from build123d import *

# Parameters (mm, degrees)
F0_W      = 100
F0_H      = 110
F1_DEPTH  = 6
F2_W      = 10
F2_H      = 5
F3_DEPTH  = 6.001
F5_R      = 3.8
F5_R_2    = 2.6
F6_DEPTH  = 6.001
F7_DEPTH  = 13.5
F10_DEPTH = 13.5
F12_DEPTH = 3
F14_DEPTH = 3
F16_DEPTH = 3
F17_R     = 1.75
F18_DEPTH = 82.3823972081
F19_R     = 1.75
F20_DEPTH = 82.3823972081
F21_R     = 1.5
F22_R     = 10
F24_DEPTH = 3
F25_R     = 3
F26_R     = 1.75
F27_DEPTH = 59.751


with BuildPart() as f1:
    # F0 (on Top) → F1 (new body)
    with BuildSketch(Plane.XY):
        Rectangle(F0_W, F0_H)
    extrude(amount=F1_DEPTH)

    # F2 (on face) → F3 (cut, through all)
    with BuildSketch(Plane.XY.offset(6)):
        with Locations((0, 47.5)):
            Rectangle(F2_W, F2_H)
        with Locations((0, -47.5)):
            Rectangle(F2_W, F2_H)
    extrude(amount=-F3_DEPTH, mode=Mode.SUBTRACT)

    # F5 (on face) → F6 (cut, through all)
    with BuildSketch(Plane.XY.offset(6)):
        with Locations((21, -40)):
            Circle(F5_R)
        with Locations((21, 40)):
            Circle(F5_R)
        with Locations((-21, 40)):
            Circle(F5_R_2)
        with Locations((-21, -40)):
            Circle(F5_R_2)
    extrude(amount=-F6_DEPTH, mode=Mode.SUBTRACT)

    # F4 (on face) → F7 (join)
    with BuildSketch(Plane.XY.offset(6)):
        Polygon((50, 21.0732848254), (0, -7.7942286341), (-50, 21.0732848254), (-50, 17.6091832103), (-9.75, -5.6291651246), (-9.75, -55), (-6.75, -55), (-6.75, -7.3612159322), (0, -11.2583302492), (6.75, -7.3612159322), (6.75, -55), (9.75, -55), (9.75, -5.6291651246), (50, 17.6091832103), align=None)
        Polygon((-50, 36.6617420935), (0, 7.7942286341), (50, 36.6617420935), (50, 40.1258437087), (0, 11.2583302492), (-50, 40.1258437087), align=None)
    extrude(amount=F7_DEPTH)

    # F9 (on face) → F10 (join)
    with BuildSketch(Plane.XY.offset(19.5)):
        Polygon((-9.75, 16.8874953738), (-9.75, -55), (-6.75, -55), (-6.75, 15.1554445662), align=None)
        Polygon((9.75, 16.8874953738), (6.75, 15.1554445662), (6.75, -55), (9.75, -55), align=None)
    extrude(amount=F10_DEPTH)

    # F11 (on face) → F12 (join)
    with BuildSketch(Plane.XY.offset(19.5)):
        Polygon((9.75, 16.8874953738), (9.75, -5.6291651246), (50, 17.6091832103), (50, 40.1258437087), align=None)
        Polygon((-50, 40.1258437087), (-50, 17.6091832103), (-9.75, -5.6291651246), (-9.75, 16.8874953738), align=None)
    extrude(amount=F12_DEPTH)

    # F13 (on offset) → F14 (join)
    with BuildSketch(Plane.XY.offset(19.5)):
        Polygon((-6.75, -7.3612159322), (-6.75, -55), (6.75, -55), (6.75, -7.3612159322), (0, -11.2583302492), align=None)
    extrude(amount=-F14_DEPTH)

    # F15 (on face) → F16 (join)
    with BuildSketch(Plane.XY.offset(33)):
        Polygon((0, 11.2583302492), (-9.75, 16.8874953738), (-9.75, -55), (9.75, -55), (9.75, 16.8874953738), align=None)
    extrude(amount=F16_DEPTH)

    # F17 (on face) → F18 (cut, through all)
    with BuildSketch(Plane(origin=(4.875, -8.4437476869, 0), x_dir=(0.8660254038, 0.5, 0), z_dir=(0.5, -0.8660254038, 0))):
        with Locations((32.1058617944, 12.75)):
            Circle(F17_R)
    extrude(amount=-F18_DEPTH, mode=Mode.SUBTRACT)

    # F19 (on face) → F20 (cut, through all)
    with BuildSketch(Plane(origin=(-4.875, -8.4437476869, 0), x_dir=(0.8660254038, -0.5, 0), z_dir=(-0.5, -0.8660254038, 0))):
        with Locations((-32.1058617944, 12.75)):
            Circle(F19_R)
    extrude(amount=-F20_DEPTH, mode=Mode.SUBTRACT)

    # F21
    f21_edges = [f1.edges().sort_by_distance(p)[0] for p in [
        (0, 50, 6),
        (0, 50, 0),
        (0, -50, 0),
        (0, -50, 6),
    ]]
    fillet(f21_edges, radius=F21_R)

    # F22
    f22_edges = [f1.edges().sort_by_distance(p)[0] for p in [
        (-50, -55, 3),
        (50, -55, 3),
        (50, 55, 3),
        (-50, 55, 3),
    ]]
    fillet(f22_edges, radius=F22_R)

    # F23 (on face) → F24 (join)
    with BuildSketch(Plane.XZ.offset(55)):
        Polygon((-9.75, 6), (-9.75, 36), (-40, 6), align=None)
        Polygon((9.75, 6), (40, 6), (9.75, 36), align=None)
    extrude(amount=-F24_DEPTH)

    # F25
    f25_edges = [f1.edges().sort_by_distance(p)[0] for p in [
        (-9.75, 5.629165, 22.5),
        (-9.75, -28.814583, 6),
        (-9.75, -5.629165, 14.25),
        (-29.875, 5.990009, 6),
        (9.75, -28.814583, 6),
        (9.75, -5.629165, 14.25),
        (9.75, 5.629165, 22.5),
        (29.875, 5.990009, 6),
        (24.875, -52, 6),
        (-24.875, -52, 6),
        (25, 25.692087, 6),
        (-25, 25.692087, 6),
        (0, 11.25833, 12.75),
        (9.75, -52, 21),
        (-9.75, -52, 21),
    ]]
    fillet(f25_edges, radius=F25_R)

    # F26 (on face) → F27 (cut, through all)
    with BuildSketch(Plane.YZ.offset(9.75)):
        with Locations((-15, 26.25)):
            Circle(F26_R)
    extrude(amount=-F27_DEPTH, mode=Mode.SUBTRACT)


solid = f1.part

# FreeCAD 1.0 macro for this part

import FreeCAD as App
import Part
import Sketcher

V = App.Vector
Q = App.Units.Quantity


def edges_at(feature, points):
    """Names of the edges that pass closest to the given points."""
    edges = feature.Shape.Edges
    near = lambda p: min(range(len(edges)), key=lambda i: edges[i].distToShape(Part.Vertex(*p))[0])
    return sorted({f"Edge{near(p) + 1}" for p in points})


def add_polygon(sketch, points):
    """Adds a closed chain of lines whose ends are joined by coincident constraints."""
    first, n = sketch.GeometryCount, len(points)
    for a, b in zip(points, points[1:] + points[:1]):
        sketch.addGeometry(Part.LineSegment(App.Vector(*a, 0), App.Vector(*b, 0)), False)
    for i in range(n):
        sketch.addConstraint(Sketcher.Constraint("Coincident", first + i, 2, first + (i + 1) % n, 1))

doc = App.newDocument("Part")
body = doc.addObject("PartDesign::Body", "Body")

# Sketch on XY plane
sketch1 = body.newObject("Sketcher::SketchObject", "Sketch")
sketch1.AttachmentSupport = (doc.getObject("XY_Plane"), [""])
sketch1.MapMode = "FlatFace"
add_polygon(sketch1, [(-50, 55), (-50, -55), (50, -55), (50, 55)])  # lines 0-3
sketch1.addConstraint([
    Sketcher.Constraint("Vertical", 0),
    Sketcher.Constraint("Horizontal", 1),
    Sketcher.Constraint("Vertical", 2),
    Sketcher.Constraint("Horizontal", 3),
    Sketcher.Constraint("Symmetric", 0, 2, 2, 2, -1, 1),
    Sketcher.Constraint("DistanceX", 1, 1, 1, 2, Q("100 mm")),
    Sketcher.Constraint("DistanceY", 0, 2, 0, 1, Q("110 mm")),
])
pad1 = body.newObject("PartDesign::Pad", "Pad")
pad1.Profile = sketch1
pad1.Length = 6

# Sketch on XY plane
sketch2 = body.newObject("Sketcher::SketchObject", "Sketch001")
sketch2.AttachmentSupport = (doc.getObject("XY_Plane"), [""])
sketch2.MapMode = "FlatFace"
sketch2.AttachmentOffset = App.Placement(V(0, 0, 6), App.Rotation())
add_polygon(sketch2, [(-5, 50), (-5, 45), (5, 45), (5, 50)])  # lines 0-3
add_polygon(sketch2, [(-5, -45), (-5, -50), (5, -50), (5, -45)])  # lines 4-7
sketch2.addConstraint([
    Sketcher.Constraint("Vertical", 0),
    Sketcher.Constraint("Horizontal", 1),
    Sketcher.Constraint("Vertical", 2),
    Sketcher.Constraint("Horizontal", 3),
    Sketcher.Constraint("Vertical", 4),
    Sketcher.Constraint("Horizontal", 5),
    Sketcher.Constraint("Vertical", 6),
    Sketcher.Constraint("Horizontal", 7),
    Sketcher.Constraint("Symmetric", 2, 2, 4, 2, -1, 1),
    Sketcher.Constraint("Symmetric", 0, 2, 6, 2, -1, 1),
    Sketcher.Constraint("Vertical", 3, 2, 4, 2),
    Sketcher.Constraint("DistanceX", 1, 1, 1, 2, Q("10 mm")),
    Sketcher.Constraint("DistanceY", 0, 2, 0, 1, Q("5 mm")),
    Sketcher.Constraint("DistanceY", -1, 1, 0, 2, Q("45 mm")),
])
pocket1 = body.newObject("PartDesign::Pocket", "Pocket")
pocket1.Profile = sketch2
pocket1.Type = "ThroughAll"

# Sketch on XY plane
sketch3 = body.newObject("Sketcher::SketchObject", "Sketch002")
sketch3.AttachmentSupport = (doc.getObject("XY_Plane"), [""])
sketch3.MapMode = "FlatFace"
sketch3.AttachmentOffset = App.Placement(V(0, 0, 6), App.Rotation())
sketch3.addGeometry([
    Part.Circle(V(21, -40, 0), V(0, 0, 1), 3.8),
    Part.Circle(V(21, 40, 0), V(0, 0, 1), 3.8),
    Part.Circle(V(-21, 40, 0), V(0, 0, 1), 2.6),
    Part.Circle(V(-21, -40, 0), V(0, 0, 1), 2.6),
], False)
sketch3.addConstraint([
    Sketcher.Constraint("Equal", 0, 1),
    Sketcher.Constraint("Equal", 2, 3),
    Sketcher.Constraint("Symmetric", 0, 3, 2, 3, -1, 1),
    Sketcher.Constraint("Symmetric", 1, 3, 3, 3, -1, 1),
    Sketcher.Constraint("Symmetric", 1, 3, 2, 3, -2),
    Sketcher.Constraint("Diameter", 0, Q("7.6 mm")),
    Sketcher.Constraint("Diameter", 2, Q("5.2 mm")),
    Sketcher.Constraint("DistanceX", -1, 1, 0, 3, Q("21 mm")),
    Sketcher.Constraint("DistanceY", 0, 3, -1, 1, Q("40 mm")),
])
pocket2 = body.newObject("PartDesign::Pocket", "Pocket001")
pocket2.Profile = sketch3
pocket2.Type = "ThroughAll"

# Sketch on XY plane
sketch4 = body.newObject("Sketcher::SketchObject", "Sketch003")
sketch4.AttachmentSupport = (doc.getObject("XY_Plane"), [""])
sketch4.MapMode = "FlatFace"
sketch4.AttachmentOffset = App.Placement(V(0, 0, 6), App.Rotation())
add_polygon(sketch4, [(50, 21.1), (0, -7.8), (-50, 21.1), (-50, 17.6), (-9.8, -5.6), (-9.8, -55), (-6.8, -55), (-6.8, -7.4), (0, -11.3), (6.8, -7.4), (6.8, -55), (9.8, -55), (9.8, -5.6), (50, 17.6)])  # lines 0-13
add_polygon(sketch4, [(-50, 36.7), (0, 7.8), (50, 36.7), (50, 40.1), (0, 11.3), (-50, 40.1)])  # lines 14-19
sketch4.addConstraint([
    Sketcher.Constraint("Vertical", 2),
    Sketcher.Constraint("Vertical", 4),
    Sketcher.Constraint("Horizontal", 5),
    Sketcher.Constraint("Vertical", 6),
    Sketcher.Constraint("Vertical", 9),
    Sketcher.Constraint("Horizontal", 10),
    Sketcher.Constraint("Vertical", 11),
    Sketcher.Constraint("Vertical", 13),
    Sketcher.Constraint("Vertical", 16),
    Sketcher.Constraint("Vertical", 19),
    Sketcher.Constraint("Symmetric", 0, 2, 14, 2, -1, 1),
    Sketcher.Constraint("Symmetric", 7, 2, 17, 2, -1, 1),
    Sketcher.Constraint("Symmetric", 6, 2, 8, 2, -2),
    Sketcher.Constraint("Symmetric", 4, 2, 10, 2, -2),
    Sketcher.Constraint("Symmetric", 2, 2, 12, 2, -2),
    Sketcher.Constraint("Symmetric", 16, 2, 18, 2, -2),
    Sketcher.Constraint("PointOnObject", 0, 2, -2),
    Sketcher.Constraint("PointOnObject", 7, 2, -2),
    Sketcher.Constraint("Parallel", 1, 3),
    Sketcher.Constraint("Parallel", 3, 7),
    Sketcher.Constraint("Parallel", 0, 8),
    Sketcher.Constraint("Parallel", 8, 12),
    Sketcher.Constraint("Parallel", 7, 14),
    Sketcher.Constraint("Parallel", 12, 15),
    Sketcher.Constraint("Parallel", 15, 17),
    Sketcher.Constraint("Vertical", 13, 2, 15, 2),
    Sketcher.Constraint("Equal", 13, 16),
    Sketcher.Constraint("DistanceX", 5, 1, 5, 2, Q("3 mm")),
    Sketcher.Constraint("Angle", 0, Q("-150 deg")),
    Sketcher.Constraint("DistanceX", 1, 2, -1, 1, Q("50 mm")),
    Sketcher.Constraint("DistanceY", 4, 2, -1, 1, Q("55 mm")),
    Sketcher.Constraint("DistanceX", 6, 2, 8, 2, Q("13.5 mm")),
    Sketcher.Constraint("DistanceY", 2, 2, 2, 1, Q("3.464102 mm")),
    Sketcher.Constraint("DistanceY", 4, 2, 4, 1, Q("49.370835 mm")),
])
pad2 = body.newObject("PartDesign::Pad", "Pad001")
pad2.Profile = sketch4
pad2.Length = 13.5

# Sketch on XY plane
sketch5 = body.newObject("Sketcher::SketchObject", "Sketch004")
sketch5.AttachmentSupport = (doc.getObject("XY_Plane"), [""])
sketch5.MapMode = "FlatFace"
sketch5.AttachmentOffset = App.Placement(V(0, 0, 19.5), App.Rotation())
add_polygon(sketch5, [(-9.8, 16.9), (-9.8, -55), (-6.8, -55), (-6.8, 15.2)])  # lines 0-3
add_polygon(sketch5, [(9.8, 16.9), (6.8, 15.2), (6.8, -55), (9.8, -55)])  # lines 4-7
sketch5.addConstraint([
    Sketcher.Constraint("Vertical", 0),
    Sketcher.Constraint("Horizontal", 1),
    Sketcher.Constraint("Vertical", 2),
    Sketcher.Constraint("Vertical", 5),
    Sketcher.Constraint("Horizontal", 6),
    Sketcher.Constraint("Vertical", 7),
    Sketcher.Constraint("Symmetric", 2, 2, 4, 2, -2),
    Sketcher.Constraint("Symmetric", 0, 2, 6, 2, -2),
    Sketcher.Constraint("Horizontal", 3, 2, 7, 2),
    Sketcher.Constraint("DistanceX", 1, 1, 1, 2, Q("3 mm")),
    Sketcher.Constraint("Angle", 3, Q("150 deg")),
    Sketcher.Constraint("DistanceY", 0, 2, -1, 1, Q("55 mm")),
    Sketcher.Constraint("DistanceX", 2, 2, 4, 2, Q("13.5 mm")),
    Sketcher.Constraint("DistanceY", 0, 2, 0, 1, Q("71.887495 mm")),
])
pad3 = body.newObject("PartDesign::Pad", "Pad002")
pad3.Profile = sketch5
pad3.Length = 13.5

# Sketch on XY plane
sketch6 = body.newObject("Sketcher::SketchObject", "Sketch005")
sketch6.AttachmentSupport = (doc.getObject("XY_Plane"), [""])
sketch6.MapMode = "FlatFace"
sketch6.AttachmentOffset = App.Placement(V(0, 0, 19.5), App.Rotation())
add_polygon(sketch6, [(10, 17), (10, -6), (50, 18), (50, 40)])  # lines 0-3
add_polygon(sketch6, [(-50, 40), (-50, 18), (-10, -6), (-10, 17)])  # lines 4-7
sketch6.addConstraint([
    Sketcher.Constraint("Vertical", 0),
    Sketcher.Constraint("Vertical", 2),
    Sketcher.Constraint("Vertical", 4),
    Sketcher.Constraint("Vertical", 6),
    Sketcher.Constraint("Symmetric", 1, 2, 4, 2, -2),
    Sketcher.Constraint("Symmetric", 0, 2, 5, 2, -2),
    Sketcher.Constraint("Parallel", 1, 3),
    Sketcher.Constraint("Parallel", 5, 7),
    Sketcher.Constraint("Horizontal", 3, 2, 6, 2),
    Sketcher.Constraint("Angle", 1, Q("30 deg")),
    Sketcher.Constraint("DistanceX", -1, 1, 1, 2, Q("50 mm")),
    Sketcher.Constraint("DistanceX", 5, 2, 0, 2, Q("19.5 mm")),
    Sketcher.Constraint("DistanceY", 0, 2, 0, 1, Q("22.51666 mm")),
    Sketcher.Constraint("DistanceY", 0, 2, -1, 1, Q("5.629165 mm")),
])
pad4 = body.newObject("PartDesign::Pad", "Pad003")
pad4.Profile = sketch6
pad4.Length = 3

# Sketch on XY plane
sketch7 = body.newObject("Sketcher::SketchObject", "Sketch006")
sketch7.AttachmentSupport = (doc.getObject("XY_Plane"), [""])
sketch7.MapMode = "FlatFace"
sketch7.AttachmentOffset = App.Placement(V(0, 0, 19.5), App.Rotation())
add_polygon(sketch7, [(-7, -7), (-7, -55), (7, -55), (7, -7), (0, -11)])  # lines 0-4
sketch7.addConstraint([
    Sketcher.Constraint("Vertical", 0),
    Sketcher.Constraint("Horizontal", 1),
    Sketcher.Constraint("Vertical", 2),
    Sketcher.Constraint("Symmetric", 2, 2, 4, 2, -2),
    Sketcher.Constraint("PointOnObject", 3, 2, -2),
    Sketcher.Constraint("Angle", 3, Q("-150 deg")),
    Sketcher.Constraint("DistanceX", 1, 1, 1, 2, Q("13.5 mm")),
    Sketcher.Constraint("DistanceY", 0, 2, -1, 1, Q("55 mm")),
    Sketcher.Constraint("DistanceY", 0, 2, 0, 1, Q("47.638784 mm")),
])
pad5 = body.newObject("PartDesign::Pad", "Pad004")
pad5.Profile = sketch7
pad5.Length = 3
pad5.Reversed = True

# Sketch on XY plane
sketch8 = body.newObject("Sketcher::SketchObject", "Sketch007")
sketch8.AttachmentSupport = (doc.getObject("XY_Plane"), [""])
sketch8.MapMode = "FlatFace"
sketch8.AttachmentOffset = App.Placement(V(0, 0, 33), App.Rotation())
add_polygon(sketch8, [(0, 11), (-10, 17), (-10, -55), (10, -55), (10, 17)])  # lines 0-4
sketch8.addConstraint([
    Sketcher.Constraint("Vertical", 1),
    Sketcher.Constraint("Horizontal", 2),
    Sketcher.Constraint("Vertical", 3),
    Sketcher.Constraint("Symmetric", 0, 2, 3, 2, -2),
    Sketcher.Constraint("PointOnObject", 4, 2, -2),
    Sketcher.Constraint("Angle", 0, Q("150 deg")),
    Sketcher.Constraint("DistanceX", 2, 1, 2, 2, Q("19.5 mm")),
    Sketcher.Constraint("DistanceY", 1, 2, -1, 1, Q("55 mm")),
    Sketcher.Constraint("DistanceY", 1, 2, 1, 1, Q("71.887495 mm")),
])
pad6 = body.newObject("PartDesign::Pad", "Pad005")
pad6.Profile = sketch8
pad6.Length = 3

# Sketch on an angled plane
sketch9 = body.newObject("Sketcher::SketchObject", "Sketch008")
sketch9.Placement = App.Placement(V(4.875, -8.443748, 0), App.Rotation(V(0.866025404, 0.5, 0), V(0, 0, 1), V(0.5, -0.866025404, 0), "ZXY"))
sketch9.addGeometry(Part.Circle(V(32.1, 12.8, 0), V(0, 0, 1), 1.8), False)
sketch9.addConstraint([
    Sketcher.Constraint("Diameter", 0, Q("3.5 mm")),
    Sketcher.Constraint("DistanceY", -1, 1, 0, 3, Q("12.75 mm")),
    Sketcher.Constraint("DistanceX", -1, 1, 0, 3, Q("32.105862 mm")),
])
pocket3 = body.newObject("PartDesign::Pocket", "Pocket002")
pocket3.Profile = sketch9
pocket3.Type = "ThroughAll"

# Sketch on an angled plane
sketch10 = body.newObject("Sketcher::SketchObject", "Sketch009")
sketch10.Placement = App.Placement(V(-4.875, -8.443748, 0), App.Rotation(V(0.866025404, -0.5, 0), V(0, 0, 1), V(-0.5, -0.866025404, 0), "ZXY"))
sketch10.addGeometry(Part.Circle(V(-32.1, 12.8, 0), V(0, 0, 1), 1.8), False)
sketch10.addConstraint([
    Sketcher.Constraint("Diameter", 0, Q("3.5 mm")),
    Sketcher.Constraint("DistanceY", -1, 1, 0, 3, Q("12.75 mm")),
    Sketcher.Constraint("DistanceX", 0, 3, -1, 1, Q("32.105862 mm")),
])
pocket4 = body.newObject("PartDesign::Pocket", "Pocket003")
pocket4.Profile = sketch10
pocket4.Type = "ThroughAll"
doc.recompute()

fillet = body.newObject("PartDesign::Fillet", "Fillet")
fillet.Base = (pocket4, edges_at(pocket4, [
    (0, 50, 6),
    (0, 50, 0),
    (0, -50, 0),
    (0, -50, 6),
]))
fillet.Radius = 1.5
doc.recompute()

fillet2 = body.newObject("PartDesign::Fillet", "Fillet001")
fillet2.Base = (fillet, edges_at(fillet, [
    (-50, -55, 3),
    (50, -55, 3),
    (50, 55, 3),
    (-50, 55, 3),
]))
fillet2.Radius = 10

# Sketch on XZ plane
sketch11 = body.newObject("Sketcher::SketchObject", "Sketch010")
sketch11.AttachmentSupport = (doc.getObject("XZ_Plane"), [""])
sketch11.MapMode = "FlatFace"
sketch11.AttachmentOffset = App.Placement(V(0, 0, 55), App.Rotation())
add_polygon(sketch11, [(-10, 6), (-10, 36), (-40, 6)])  # lines 0-2
add_polygon(sketch11, [(10, 6), (40, 6), (10, 36)])  # lines 3-5
sketch11.addConstraint([
    Sketcher.Constraint("Vertical", 0),
    Sketcher.Constraint("Horizontal", 2),
    Sketcher.Constraint("Horizontal", 3),
    Sketcher.Constraint("Vertical", 5),
    Sketcher.Constraint("Symmetric", 1, 2, 3, 2, -2),
    Sketcher.Constraint("Symmetric", 0, 2, 4, 2, -2),
    Sketcher.Constraint("DistanceY", 0, 1, 0, 2, Q("30 mm")),
    Sketcher.Constraint("DistanceY", -1, 1, 0, 2, Q("36 mm")),
    Sketcher.Constraint("DistanceX", 1, 2, -1, 1, Q("40 mm")),
    Sketcher.Constraint("DistanceX", 2, 1, 2, 2, Q("30.25 mm")),
])
pad7 = body.newObject("PartDesign::Pad", "Pad006")
pad7.Profile = sketch11
pad7.Length = 3
pad7.Reversed = True
doc.recompute()

fillet3 = body.newObject("PartDesign::Fillet", "Fillet002")
fillet3.Base = (pad7, edges_at(pad7, [
    (-9.75, 5.629, 22.5),
    (-9.75, -28.815, 6),
    (-9.75, -5.629, 14.25),
    (-29.875, 5.99, 6),
    (9.75, -28.815, 6),
    (9.75, -5.629, 14.25),
    (9.75, 5.629, 22.5),
    (29.875, 5.99, 6),
    (24.875, -52, 6),
    (-24.875, -52, 6),
    (25, 25.692, 6),
    (-25, 25.692, 6),
    (0, 11.258, 12.75),
    (9.75, -52, 21),
    (-9.75, -52, 21),
]))
fillet3.Radius = 3

# Sketch on YZ plane
sketch12 = body.newObject("Sketcher::SketchObject", "Sketch011")
sketch12.AttachmentSupport = (doc.getObject("YZ_Plane"), [""])
sketch12.MapMode = "FlatFace"
sketch12.AttachmentOffset = App.Placement(V(0, 0, 9.75), App.Rotation())
sketch12.addGeometry(Part.Circle(V(-15, 26.2, 0), V(0, 0, 1), 1.8), False)
sketch12.addConstraint([
    Sketcher.Constraint("Diameter", 0, Q("3.5 mm")),
    Sketcher.Constraint("DistanceX", 0, 3, -1, 1, Q("15 mm")),
    Sketcher.Constraint("DistanceY", -1, 1, 0, 3, Q("26.25 mm")),
])
pocket5 = body.newObject("PartDesign::Pocket", "Pocket004")
pocket5.Profile = sketch12
pocket5.Type = "ThroughAll"

doc.recompute()
